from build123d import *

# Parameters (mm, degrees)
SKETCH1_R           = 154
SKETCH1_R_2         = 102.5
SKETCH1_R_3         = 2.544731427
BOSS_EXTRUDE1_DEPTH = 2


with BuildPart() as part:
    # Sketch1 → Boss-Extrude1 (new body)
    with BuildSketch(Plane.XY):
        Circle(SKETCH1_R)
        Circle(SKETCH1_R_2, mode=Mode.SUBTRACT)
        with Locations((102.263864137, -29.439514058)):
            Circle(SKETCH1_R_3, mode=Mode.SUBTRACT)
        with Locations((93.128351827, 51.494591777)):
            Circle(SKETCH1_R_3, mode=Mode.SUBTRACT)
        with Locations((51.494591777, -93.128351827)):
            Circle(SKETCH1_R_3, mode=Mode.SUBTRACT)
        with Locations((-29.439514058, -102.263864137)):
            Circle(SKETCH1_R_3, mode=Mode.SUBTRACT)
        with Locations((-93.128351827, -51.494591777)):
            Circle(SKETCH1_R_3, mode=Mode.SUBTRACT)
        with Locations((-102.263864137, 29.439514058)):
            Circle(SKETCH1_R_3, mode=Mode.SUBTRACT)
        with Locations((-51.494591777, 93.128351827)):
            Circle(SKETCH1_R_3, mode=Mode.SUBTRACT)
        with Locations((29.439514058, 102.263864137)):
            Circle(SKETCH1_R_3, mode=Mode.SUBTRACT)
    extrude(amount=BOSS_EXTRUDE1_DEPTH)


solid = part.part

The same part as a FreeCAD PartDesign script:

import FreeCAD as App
import Part
import Sketcher

V = App.Vector

doc = App.newDocument("Part")
params = doc.addObject("Spreadsheet::Sheet", "Params")
for row, (alias, value) in enumerate([
    ("sketch1_diameter", "308 mm"),
    ("sketch1_diameter2", "205 mm"),
    ("pad1_length", "2 mm"),
], start=1):
    params.set(f"A{row}", alias)
    params.set(f"B{row}", "=" + value)
    params.setAlias(f"B{row}", alias)

body = doc.addObject("PartDesign::Body", "Body")

# Sketch on XY plane
sketch1 = doc.addObject("Sketcher::SketchObject", "Sketch")
body.addObject(sketch1)
sketch1.AttachmentSupport = (doc.XY_Plane, [""])
sketch1.MapMode = "FlatFace"
sketch1.addGeometry([
    Part.Circle(V(0, 0, 0), V(0, 0, 1), 154),  # 0
    Part.Circle(V(-29.4, -102.3, 0), V(0, 0, 1), 2.5),  # 1
    Part.Circle(V(-93.1, -51.5, 0), V(0, 0, 1), 2.5),  # 2
    Part.Circle(V(0, 0, 0), V(0, 0, 1), 102.5),  # 3
    Part.Circle(V(51.5, -93.1, 0), V(0, 0, 1), 2.5),  # 4
    Part.Circle(V(102.3, -29.4, 0), V(0, 0, 1), 2.5),  # 5
    Part.Circle(V(-102.3, 29.4, 0), V(0, 0, 1), 2.5),  # 6
    Part.Circle(V(-51.5, 93.1, 0), V(0, 0, 1), 2.5),  # 7
    Part.Circle(V(93.1, 51.5, 0), V(0, 0, 1), 2.5),  # 8
    Part.Circle(V(29.4, 102.3, 0), V(0, 0, 1), 2.5),  # 9
], False)
sketch1.addConstraint([
    Sketcher.Constraint("Coincident", 0, 3, -1, 1),
    Sketcher.Constraint("Coincident", 3, 3, -1, 1),
    Sketcher.Constraint("Equal", 1, 2),
    Sketcher.Constraint("Equal", 2, 4),
    Sketcher.Constraint("Equal", 4, 5),
    Sketcher.Constraint("Equal", 5, 6),
    Sketcher.Constraint("Equal", 6, 7),
    Sketcher.Constraint("Equal", 7, 8),
    Sketcher.Constraint("Equal", 8, 9),
    Sketcher.Constraint("Symmetric", 5, 3, 6, 3, -1, 1),
    Sketcher.Constraint("Symmetric", 4, 3, 7, 3, -1, 1),
    Sketcher.Constraint("Symmetric", 2, 3, 8, 3, -1, 1),
    Sketcher.Constraint("Symmetric", 1, 3, 9, 3, -1, 1),
    Sketcher.Constraint("Diameter", 0, 308.0),
    Sketcher.Constraint("Diameter", 3, 205.0),
    Sketcher.Constraint("Diameter", 1, 5.089463),
    Sketcher.Constraint("DistanceX", 2, 3, -1, 1, 93.128352),
    Sketcher.Constraint("DistanceY", 2, 3, -1, 1, 51.494592),
    Sketcher.Constraint("DistanceX", -1, 1, 4, 3, 51.494592),
    Sketcher.Constraint("DistanceY", 4, 3, -1, 1, 93.128352),
    Sketcher.Constraint("DistanceX", 1, 3, 5, 3, 131.703378),
    Sketcher.Constraint("DistanceY", 1, 3, 5, 3, 72.82435),
    Sketcher.Constraint("DistanceX", 6, 3, 1, 3, 72.82435),
    Sketcher.Constraint("DistanceY", 1, 3, 6, 3, 131.703378),
])
sketch1.setExpression("Constraints[13]", "Params.sketch1_diameter")
sketch1.setExpression("Constraints[14]", "Params.sketch1_diameter2")
pad1 = doc.addObject("PartDesign::Pad", "Pad")
body.addObject(pad1)
pad1.Profile = sketch1
pad1.setExpression("Length", "Params.pad1_length")

doc.recompute()
